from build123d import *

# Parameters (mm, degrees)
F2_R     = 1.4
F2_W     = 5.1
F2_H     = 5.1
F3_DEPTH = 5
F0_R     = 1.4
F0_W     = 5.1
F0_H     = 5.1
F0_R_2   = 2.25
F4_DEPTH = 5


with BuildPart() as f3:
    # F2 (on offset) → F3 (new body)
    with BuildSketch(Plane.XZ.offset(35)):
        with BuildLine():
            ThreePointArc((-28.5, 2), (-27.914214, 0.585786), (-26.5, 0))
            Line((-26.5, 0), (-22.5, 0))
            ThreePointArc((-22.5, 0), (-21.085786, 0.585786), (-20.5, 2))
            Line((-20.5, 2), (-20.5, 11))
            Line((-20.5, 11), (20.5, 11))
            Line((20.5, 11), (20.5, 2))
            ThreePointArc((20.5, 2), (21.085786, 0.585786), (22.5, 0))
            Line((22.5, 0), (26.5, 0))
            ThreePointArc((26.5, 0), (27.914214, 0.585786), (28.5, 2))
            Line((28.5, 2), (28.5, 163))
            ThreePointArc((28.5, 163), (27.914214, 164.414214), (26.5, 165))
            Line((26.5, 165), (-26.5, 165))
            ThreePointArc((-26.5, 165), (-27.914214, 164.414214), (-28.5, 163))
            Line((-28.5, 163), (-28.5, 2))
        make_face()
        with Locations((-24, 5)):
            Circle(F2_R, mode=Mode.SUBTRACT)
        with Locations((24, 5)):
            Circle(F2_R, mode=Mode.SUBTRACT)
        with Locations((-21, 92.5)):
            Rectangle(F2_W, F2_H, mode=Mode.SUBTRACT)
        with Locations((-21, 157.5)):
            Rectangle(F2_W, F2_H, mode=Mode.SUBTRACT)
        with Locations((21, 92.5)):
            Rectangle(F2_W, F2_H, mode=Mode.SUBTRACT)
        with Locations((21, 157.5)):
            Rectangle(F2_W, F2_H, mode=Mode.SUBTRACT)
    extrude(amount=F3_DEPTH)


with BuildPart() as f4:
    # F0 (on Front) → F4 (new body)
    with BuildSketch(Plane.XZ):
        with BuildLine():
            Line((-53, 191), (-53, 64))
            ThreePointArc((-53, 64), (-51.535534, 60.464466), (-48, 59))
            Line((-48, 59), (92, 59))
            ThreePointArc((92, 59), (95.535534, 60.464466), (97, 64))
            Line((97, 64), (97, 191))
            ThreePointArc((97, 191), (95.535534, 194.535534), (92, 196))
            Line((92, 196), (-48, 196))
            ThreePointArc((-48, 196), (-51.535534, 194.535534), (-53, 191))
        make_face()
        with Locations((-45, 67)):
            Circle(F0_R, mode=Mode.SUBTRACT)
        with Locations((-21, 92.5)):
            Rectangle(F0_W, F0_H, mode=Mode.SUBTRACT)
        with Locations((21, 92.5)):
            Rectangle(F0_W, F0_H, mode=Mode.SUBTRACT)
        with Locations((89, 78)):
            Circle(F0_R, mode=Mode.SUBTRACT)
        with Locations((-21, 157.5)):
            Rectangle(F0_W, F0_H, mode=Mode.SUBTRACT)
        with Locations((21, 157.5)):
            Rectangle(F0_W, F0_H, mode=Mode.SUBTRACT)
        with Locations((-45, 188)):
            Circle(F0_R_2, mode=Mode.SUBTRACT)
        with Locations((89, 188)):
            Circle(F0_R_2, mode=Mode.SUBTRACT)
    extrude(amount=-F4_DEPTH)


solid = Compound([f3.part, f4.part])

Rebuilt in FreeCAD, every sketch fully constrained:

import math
import FreeCAD as App
import Part
import Sketcher

doc = App.newDocument("Part")
body = doc.addObject("PartDesign::Body", "Body")

# Sketch on XZ plane
sketch1 = doc.addObject("Sketcher::SketchObject", "Sketch")
body.addObject(sketch1)
sketch1.AttachmentSupport = (doc.XZ_Plane, [""])
sketch1.MapMode = "FlatFace"
sketch1.AttachmentOffset = App.Placement(App.Vector(0, 0, 35), App.Rotation())
sketch1.addGeometry([
    Part.ArcOfCircle(Part.Circle(App.Vector(-26.5, 2, 0), App.Vector(0, 0, 1), 2), math.radians(180), math.radians(270)),  # 0
    Part.LineSegment(App.Vector(-26.5, 0, 0), App.Vector(-22.5, 0, 0)),  # 1
    Part.ArcOfCircle(Part.Circle(App.Vector(-22.5, 2, 0), App.Vector(0, 0, 1), 2), math.radians(-90), math.radians(0)),  # 2
    Part.LineSegment(App.Vector(-20.5, 2, 0), App.Vector(-20.5, 11, 0)),  # 3
    Part.LineSegment(App.Vector(-20.5, 11, 0), App.Vector(20.5, 11, 0)),  # 4
    Part.LineSegment(App.Vector(20.5, 11, 0), App.Vector(20.5, 2, 0)),  # 5
    Part.ArcOfCircle(Part.Circle(App.Vector(22.5, 2, 0), App.Vector(0, 0, 1), 2), math.radians(180), math.radians(270)),  # 6
    Part.LineSegment(App.Vector(22.5, 0, 0), App.Vector(26.5, 0, 0)),  # 7
    Part.ArcOfCircle(Part.Circle(App.Vector(26.5, 2, 0), App.Vector(0, 0, 1), 2), math.radians(-90), math.radians(0)),  # 8
    Part.LineSegment(App.Vector(28.5, 2, 0), App.Vector(28.5, 163, 0)),  # 9
    Part.ArcOfCircle(Part.Circle(App.Vector(26.5, 163, 0), App.Vector(0, 0, 1), 2), math.radians(0), math.radians(90)),  # 10
    Part.LineSegment(App.Vector(26.5, 165, 0), App.Vector(-26.5, 165, 0)),  # 11
    Part.ArcOfCircle(Part.Circle(App.Vector(-26.5, 163, 0), App.Vector(0, 0, 1), 2), math.radians(90), math.radians(180)),  # 12
    Part.LineSegment(App.Vector(-28.5, 163, 0), App.Vector(-28.5, 2, 0)),  # 13
    Part.Circle(App.Vector(-24, 5, 0), App.Vector(0, 0, 1), 1.4),  # 14
    Part.Circle(App.Vector(24, 5, 0), App.Vector(0, 0, 1), 1.4),  # 15
    Part.LineSegment(App.Vector(-18.4, 90, 0), App.Vector(-23.6, 90, 0)),  # 16
    Part.LineSegment(App.Vector(-23.6, 90, 0), App.Vector(-23.6, 95, 0)),  # 17
    Part.LineSegment(App.Vector(-23.6, 95, 0), App.Vector(-18.4, 95, 0)),  # 18
    Part.LineSegment(App.Vector(-18.4, 95, 0), App.Vector(-18.4, 90, 0)),  # 19
    Part.LineSegment(App.Vector(-18.4, 154.9, 0), App.Vector(-23.6, 154.9, 0)),  # 20
    Part.LineSegment(App.Vector(-23.6, 154.9, 0), App.Vector(-23.6, 160.1, 0)),  # 21
    Part.LineSegment(App.Vector(-23.6, 160.1, 0), App.Vector(-18.4, 160.1, 0)),  # 22
    Part.LineSegment(App.Vector(-18.4, 160.1, 0), App.Vector(-18.4, 154.9, 0)),  # 23
    Part.LineSegment(App.Vector(23.6, 90, 0), App.Vector(18.4, 90, 0)),  # 24
    Part.LineSegment(App.Vector(18.4, 90, 0), App.Vector(18.4, 95, 0)),  # 25
    Part.LineSegment(App.Vector(18.4, 95, 0), App.Vector(23.6, 95, 0)),  # 26
    Part.LineSegment(App.Vector(23.6, 95, 0), App.Vector(23.6, 90, 0)),  # 27
    Part.LineSegment(App.Vector(23.6, 154.9, 0), App.Vector(18.4, 154.9, 0)),  # 28
    Part.LineSegment(App.Vector(18.4, 154.9, 0), App.Vector(18.4, 160.1, 0)),  # 29
    Part.LineSegment(App.Vector(18.4, 160.1, 0), App.Vector(23.6, 160.1, 0)),  # 30
    Part.LineSegment(App.Vector(23.6, 160.1, 0), App.Vector(23.6, 154.9, 0)),  # 31
], False)
sketch1.addConstraint([
    Sketcher.Constraint("Tangent", 0, 2, 1, 1),
    Sketcher.Constraint("Tangent", 1, 2, 2, 1),
    Sketcher.Constraint("Tangent", 2, 2, 3, 1),
    Sketcher.Constraint("Coincident", 3, 2, 4, 1),
    Sketcher.Constraint("Coincident", 4, 2, 5, 1),
    Sketcher.Constraint("Tangent", 5, 2, 6, 1),
    Sketcher.Constraint("Tangent", 6, 2, 7, 1),
    Sketcher.Constraint("Tangent", 7, 2, 8, 1),
    Sketcher.Constraint("Tangent", 8, 2, 9, 1),
    Sketcher.Constraint("Tangent", 9, 2, 10, 1),
    Sketcher.Constraint("Tangent", 10, 2, 11, 1),
    Sketcher.Constraint("Tangent", 11, 2, 12, 1),
    Sketcher.Constraint("Tangent", 12, 2, 13, 1),
    Sketcher.Constraint("Tangent", 13, 2, 0, 1),
    Sketcher.Constraint("Coincident", 16, 2, 17, 1),
    Sketcher.Constraint("Coincident", 17, 2, 18, 1),
    Sketcher.Constraint("Coincident", 18, 2, 19, 1),
    Sketcher.Constraint("Coincident", 19, 2, 16, 1),
    Sketcher.Constraint("Coincident", 20, 2, 21, 1),
    Sketcher.Constraint("Coincident", 21, 2, 22, 1),
    Sketcher.Constraint("Coincident", 22, 2, 23, 1),
    Sketcher.Constraint("Coincident", 23, 2, 20, 1),
    Sketcher.Constraint("Coincident", 24, 2, 25, 1),
    Sketcher.Constraint("Coincident", 25, 2, 26, 1),
    Sketcher.Constraint("Coincident", 26, 2, 27, 1),
    Sketcher.Constraint("Coincident", 27, 2, 24, 1),
    Sketcher.Constraint("Coincident", 28, 2, 29, 1),
    Sketcher.Constraint("Coincident", 29, 2, 30, 1),
    Sketcher.Constraint("Coincident", 30, 2, 31, 1),
    Sketcher.Constraint("Coincident", 31, 2, 28, 1),
    Sketcher.Constraint("Horizontal", 1),
    Sketcher.Constraint("Vertical", 3),
    Sketcher.Constraint("Horizontal", 4),
    Sketcher.Constraint("Vertical", 5),
    Sketcher.Constraint("Horizontal", 7),
    Sketcher.Constraint("Vertical", 9),
    Sketcher.Constraint("Horizontal", 11),
    Sketcher.Constraint("Vertical", 13),
    Sketcher.Constraint("Horizontal", 16),
    Sketcher.Constraint("Vertical", 17),
    Sketcher.Constraint("Horizontal", 18),
    Sketcher.Constraint("Vertical", 19),
    Sketcher.Constraint("Horizontal", 20),
    Sketcher.Constraint("Vertical", 21),
    Sketcher.Constraint("Horizontal", 22),
    Sketcher.Constraint("Vertical", 23),
    Sketcher.Constraint("Horizontal", 24),
    Sketcher.Constraint("Vertical", 25),
    Sketcher.Constraint("Horizontal", 26),
    Sketcher.Constraint("Vertical", 27),
    Sketcher.Constraint("Horizontal", 28),
    Sketcher.Constraint("Vertical", 29),
    Sketcher.Constraint("Horizontal", 30),
    Sketcher.Constraint("Vertical", 31),
    Sketcher.Constraint("Equal", 0, 2),
    Sketcher.Constraint("Equal", 2, 6),
    Sketcher.Constraint("Equal", 6, 8),
    Sketcher.Constraint("Equal", 8, 10),
    Sketcher.Constraint("Equal", 10, 12),
    Sketcher.Constraint("Equal", 14, 15),
    Sketcher.Constraint("Symmetric", 1, 2, 6, 2, -1, 1),
    Sketcher.Constraint("Symmetric", 0, 3, 8, 3, -2),
    Sketcher.Constraint("Symmetric", 14, 3, 15, 3, -2),
    Sketcher.Constraint("Symmetric", 19, 2, 24, 2, -2),
    Sketcher.Constraint("Symmetric", 17, 2, 26, 2, -2),
    Sketcher.Constraint("Symmetric", 23, 2, 28, 2, -2),
    Sketcher.Constraint("Symmetric", 21, 2, 30, 2, -2),
    Sketcher.Constraint("Vertical", 17, 2, 20, 2),
    Sketcher.Constraint("Vertical", 19, 2, 22, 2),
    Sketcher.Constraint("Equal", 30, 17),
    Sketcher.Constraint("Equal", 19, 21),
    Sketcher.Constraint("Radius", 0, 1.999999),
    Sketcher.Constraint("Diameter", 14, 2.8),
    Sketcher.Constraint("DistanceX", 1, 1, 1, 2, 4.0),
    Sketcher.Constraint("DistanceX", 4, 1, 4, 2, 41.0),
    Sketcher.Constraint("DistanceY", 3, 1, 3, 2, 9.0),
    Sketcher.Constraint("DistanceY", 9, 1, 9, 2, 161.0),
    Sketcher.Constraint("DistanceX", 16, 2, 16, 1, 5.1),
    Sketcher.Constraint("DistanceX", 14, 3, -1, 1, 24.0),
    Sketcher.Constraint("DistanceY", -1, 1, 14, 3, 5.0),
    Sketcher.Constraint("DistanceX", 16, 2, 24, 2, 42.0),
    Sketcher.Constraint("DistanceY", -1, 1, 16, 2, 89.95),
    Sketcher.Constraint("DistanceY", -1, 1, 20, 2, 154.95),
])
pad1 = doc.addObject("PartDesign::Pad", "Pad")
body.addObject(pad1)
pad1.Profile = sketch1
pad1.Length = 5
body2 = doc.addObject("PartDesign::Body", "Body001")

# Sketch on XZ plane
sketch2 = doc.addObject("Sketcher::SketchObject", "Sketch001")
body2.addObject(sketch2)
sketch2.AttachmentSupport = (doc.getObject("XZ_Plane001"), [""])
sketch2.MapMode = "FlatFace"
sketch2.addGeometry([
    Part.LineSegment(App.Vector(-53, 191, 0), App.Vector(-53, 64, 0)),  # 0
    Part.ArcOfCircle(Part.Circle(App.Vector(-48, 64, 0), App.Vector(0, 0, 1), 5), math.radians(180), math.radians(270)),  # 1
    Part.LineSegment(App.Vector(-48, 59, 0), App.Vector(92, 59, 0)),  # 2
    Part.ArcOfCircle(Part.Circle(App.Vector(92, 64, 0), App.Vector(0, 0, 1), 5), math.radians(-90), math.radians(0)),  # 3
    Part.LineSegment(App.Vector(97, 64, 0), App.Vector(97, 191, 0)),  # 4
    Part.ArcOfCircle(Part.Circle(App.Vector(92, 191, 0), App.Vector(0, 0, 1), 5), math.radians(0), math.radians(90)),  # 5
    Part.LineSegment(App.Vector(92, 196, 0), App.Vector(-48, 196, 0)),  # 6
    Part.ArcOfCircle(Part.Circle(App.Vector(-48, 191, 0), App.Vector(0, 0, 1), 5), math.radians(90), math.radians(180)),  # 7
    Part.Circle(App.Vector(-45, 67, 0), App.Vector(0, 0, 1), 1.4),  # 8
    Part.LineSegment(App.Vector(-18.4, 90, 0), App.Vector(-23.6, 90, 0)),  # 9
    Part.LineSegment(App.Vector(-23.6, 90, 0), App.Vector(-23.6, 95, 0)),  # 10
    Part.LineSegment(App.Vector(-23.6, 95, 0), App.Vector(-18.4, 95, 0)),  # 11
    Part.LineSegment(App.Vector(-18.4, 95, 0), App.Vector(-18.4, 90, 0)),  # 12
    Part.LineSegment(App.Vector(23.6, 90, 0), App.Vector(18.4, 90, 0)),  # 13
    Part.LineSegment(App.Vector(18.4, 90, 0), App.Vector(18.4, 95, 0)),  # 14
    Part.LineSegment(App.Vector(18.4, 95, 0), App.Vector(23.6, 95, 0)),  # 15
    Part.LineSegment(App.Vector(23.6, 95, 0), App.Vector(23.6, 90, 0)),  # 16
    Part.Circle(App.Vector(89, 78, 0), App.Vector(0, 0, 1), 1.4),  # 17
    Part.LineSegment(App.Vector(-18.4, 154.9, 0), App.Vector(-23.6, 154.9, 0)),  # 18
    Part.LineSegment(App.Vector(-23.6, 154.9, 0), App.Vector(-23.6, 160.1, 0)),  # 19
    Part.LineSegment(App.Vector(-23.6, 160.1, 0), App.Vector(-18.4, 160.1, 0)),  # 20
    Part.LineSegment(App.Vector(-18.4, 160.1, 0), App.Vector(-18.4, 154.9, 0)),  # 21
    Part.LineSegment(App.Vector(23.6, 154.9, 0), App.Vector(18.4, 154.9, 0)),  # 22
    Part.LineSegment(App.Vector(18.4, 154.9, 0), App.Vector(18.4, 160.1, 0)),  # 23
    Part.LineSegment(App.Vector(18.4, 160.1, 0), App.Vector(23.6, 160.1, 0)),  # 24
    Part.LineSegment(App.Vector(23.6, 160.1, 0), App.Vector(23.6, 154.9, 0)),  # 25
    Part.Circle(App.Vector(-45, 188, 0), App.Vector(0, 0, 1), 2.2),  # 26
    Part.Circle(App.Vector(89, 188, 0), App.Vector(0, 0, 1), 2.2),  # 27
], False)
sketch2.addConstraint([
    Sketcher.Constraint("Tangent", 0, 2, 1, 1),
    Sketcher.Constraint("Tangent", 1, 2, 2, 1),
    Sketcher.Constraint("Tangent", 2, 2, 3, 1),
    Sketcher.Constraint("Tangent", 3, 2, 4, 1),
    Sketcher.Constraint("Tangent", 4, 2, 5, 1),
    Sketcher.Constraint("Tangent", 5, 2, 6, 1),
    Sketcher.Constraint("Tangent", 6, 2, 7, 1),
    Sketcher.Constraint("Tangent", 7, 2, 0, 1),
    Sketcher.Constraint("Coincident", 9, 2, 10, 1),
    Sketcher.Constraint("Coincident", 10, 2, 11, 1),
    Sketcher.Constraint("Coincident", 11, 2, 12, 1),
    Sketcher.Constraint("Coincident", 12, 2, 9, 1),
    Sketcher.Constraint("Coincident", 13, 2, 14, 1),
    Sketcher.Constraint("Coincident", 14, 2, 15, 1),
    Sketcher.Constraint("Coincident", 15, 2, 16, 1),
    Sketcher.Constraint("Coincident", 16, 2, 13, 1),
    Sketcher.Constraint("Coincident", 18, 2, 19, 1),
    Sketcher.Constraint("Coincident", 19, 2, 20, 1),
    Sketcher.Constraint("Coincident", 20, 2, 21, 1),
    Sketcher.Constraint("Coincident", 21, 2, 18, 1),
    Sketcher.Constraint("Coincident", 22, 2, 23, 1),
    Sketcher.Constraint("Coincident", 23, 2, 24, 1),
    Sketcher.Constraint("Coincident", 24, 2, 25, 1),
    Sketcher.Constraint("Coincident", 25, 2, 22, 1),
    Sketcher.Constraint("Vertical", 0),
    Sketcher.Constraint("Horizontal", 2),
    Sketcher.Constraint("Vertical", 4),
    Sketcher.Constraint("Horizontal", 6),
    Sketcher.Constraint("Horizontal", 9),
    Sketcher.Constraint("Vertical", 10),
    Sketcher.Constraint("Horizontal", 11),
    Sketcher.Constraint("Vertical", 12),
    Sketcher.Constraint("Horizontal", 13),
    Sketcher.Constraint("Vertical", 14),
    Sketcher.Constraint("Horizontal", 15),
    Sketcher.Constraint("Vertical", 16),
    Sketcher.Constraint("Horizontal", 18),
    Sketcher.Constraint("Vertical", 19),
    Sketcher.Constraint("Horizontal", 20),
    Sketcher.Constraint("Vertical", 21),
    Sketcher.Constraint("Horizontal", 22),
    Sketcher.Constraint("Vertical", 23),
    Sketcher.Constraint("Horizontal", 24),
    Sketcher.Constraint("Vertical", 25),
    Sketcher.Constraint("Equal", 1, 3),
    Sketcher.Constraint("Equal", 3, 5),
    Sketcher.Constraint("Equal", 5, 7),
    Sketcher.Constraint("Equal", 8, 17),
    Sketcher.Constraint("Equal", 26, 27),
    Sketcher.Constraint("Symmetric", 12, 2, 13, 2, -2),
    Sketcher.Constraint("Symmetric", 10, 2, 15, 2, -2),
    Sketcher.Constraint("Symmetric", 21, 2, 22, 2, -2),
    Sketcher.Constraint("Symmetric", 19, 2, 24, 2, -2),
    Sketcher.Constraint("Horizontal", 26, 3, 27, 3),
    Sketcher.Constraint("Vertical", 8, 3, 26, 3),
    Sketcher.Constraint("Vertical", 17, 3, 27, 3),
    Sketcher.Constraint("Vertical", 10, 2, 18, 2),
    Sketcher.Constraint("Vertical", 12, 2, 20, 2),
    Sketcher.Constraint("Equal", 24, 10),
    Sketcher.Constraint("Equal", 16, 19),
    Sketcher.Constraint("Radius", 1, 5.0),
    Sketcher.Constraint("Diameter", 8, 2.8),
    Sketcher.Constraint("Diameter", 26, 4.5),
    Sketcher.Constraint("DistanceX", 2, 1, 2, 2, 140.0),
    Sketcher.Constraint("DistanceY", 0, 2, 0, 1, 127.0),
    Sketcher.Constraint("DistanceX", 9, 2, 9, 1, 5.1),
    Sketcher.Constraint("DistanceX", 1, 3, -1, 1, 48.0),
    Sketcher.Constraint("DistanceY", -1, 1, 1, 3, 64.0),
    Sketcher.Constraint("DistanceX", 8, 3, -1, 1, 45.0),
    Sketcher.Constraint("DistanceY", -1, 1, 8, 3, 67.0),
    Sketcher.Constraint("DistanceX", -1, 1, 17, 3, 89.0),
    Sketcher.Constraint("DistanceY", -1, 1, 17, 3, 78.0),
    Sketcher.Constraint("DistanceY", -1, 1, 26, 3, 188.0),
    Sketcher.Constraint("DistanceX", 9, 2, 13, 2, 42.0),
    Sketcher.Constraint("DistanceY", 10, 2, 18, 2, 59.9),
    Sketcher.Constraint("DistanceY", -1, 1, 9, 2, 89.95),
])
pad2 = doc.addObject("PartDesign::Pad", "Pad001")
body2.addObject(pad2)
pad2.Profile = sketch2
pad2.Length = 5
pad2.Reversed = True

doc.recompute()
